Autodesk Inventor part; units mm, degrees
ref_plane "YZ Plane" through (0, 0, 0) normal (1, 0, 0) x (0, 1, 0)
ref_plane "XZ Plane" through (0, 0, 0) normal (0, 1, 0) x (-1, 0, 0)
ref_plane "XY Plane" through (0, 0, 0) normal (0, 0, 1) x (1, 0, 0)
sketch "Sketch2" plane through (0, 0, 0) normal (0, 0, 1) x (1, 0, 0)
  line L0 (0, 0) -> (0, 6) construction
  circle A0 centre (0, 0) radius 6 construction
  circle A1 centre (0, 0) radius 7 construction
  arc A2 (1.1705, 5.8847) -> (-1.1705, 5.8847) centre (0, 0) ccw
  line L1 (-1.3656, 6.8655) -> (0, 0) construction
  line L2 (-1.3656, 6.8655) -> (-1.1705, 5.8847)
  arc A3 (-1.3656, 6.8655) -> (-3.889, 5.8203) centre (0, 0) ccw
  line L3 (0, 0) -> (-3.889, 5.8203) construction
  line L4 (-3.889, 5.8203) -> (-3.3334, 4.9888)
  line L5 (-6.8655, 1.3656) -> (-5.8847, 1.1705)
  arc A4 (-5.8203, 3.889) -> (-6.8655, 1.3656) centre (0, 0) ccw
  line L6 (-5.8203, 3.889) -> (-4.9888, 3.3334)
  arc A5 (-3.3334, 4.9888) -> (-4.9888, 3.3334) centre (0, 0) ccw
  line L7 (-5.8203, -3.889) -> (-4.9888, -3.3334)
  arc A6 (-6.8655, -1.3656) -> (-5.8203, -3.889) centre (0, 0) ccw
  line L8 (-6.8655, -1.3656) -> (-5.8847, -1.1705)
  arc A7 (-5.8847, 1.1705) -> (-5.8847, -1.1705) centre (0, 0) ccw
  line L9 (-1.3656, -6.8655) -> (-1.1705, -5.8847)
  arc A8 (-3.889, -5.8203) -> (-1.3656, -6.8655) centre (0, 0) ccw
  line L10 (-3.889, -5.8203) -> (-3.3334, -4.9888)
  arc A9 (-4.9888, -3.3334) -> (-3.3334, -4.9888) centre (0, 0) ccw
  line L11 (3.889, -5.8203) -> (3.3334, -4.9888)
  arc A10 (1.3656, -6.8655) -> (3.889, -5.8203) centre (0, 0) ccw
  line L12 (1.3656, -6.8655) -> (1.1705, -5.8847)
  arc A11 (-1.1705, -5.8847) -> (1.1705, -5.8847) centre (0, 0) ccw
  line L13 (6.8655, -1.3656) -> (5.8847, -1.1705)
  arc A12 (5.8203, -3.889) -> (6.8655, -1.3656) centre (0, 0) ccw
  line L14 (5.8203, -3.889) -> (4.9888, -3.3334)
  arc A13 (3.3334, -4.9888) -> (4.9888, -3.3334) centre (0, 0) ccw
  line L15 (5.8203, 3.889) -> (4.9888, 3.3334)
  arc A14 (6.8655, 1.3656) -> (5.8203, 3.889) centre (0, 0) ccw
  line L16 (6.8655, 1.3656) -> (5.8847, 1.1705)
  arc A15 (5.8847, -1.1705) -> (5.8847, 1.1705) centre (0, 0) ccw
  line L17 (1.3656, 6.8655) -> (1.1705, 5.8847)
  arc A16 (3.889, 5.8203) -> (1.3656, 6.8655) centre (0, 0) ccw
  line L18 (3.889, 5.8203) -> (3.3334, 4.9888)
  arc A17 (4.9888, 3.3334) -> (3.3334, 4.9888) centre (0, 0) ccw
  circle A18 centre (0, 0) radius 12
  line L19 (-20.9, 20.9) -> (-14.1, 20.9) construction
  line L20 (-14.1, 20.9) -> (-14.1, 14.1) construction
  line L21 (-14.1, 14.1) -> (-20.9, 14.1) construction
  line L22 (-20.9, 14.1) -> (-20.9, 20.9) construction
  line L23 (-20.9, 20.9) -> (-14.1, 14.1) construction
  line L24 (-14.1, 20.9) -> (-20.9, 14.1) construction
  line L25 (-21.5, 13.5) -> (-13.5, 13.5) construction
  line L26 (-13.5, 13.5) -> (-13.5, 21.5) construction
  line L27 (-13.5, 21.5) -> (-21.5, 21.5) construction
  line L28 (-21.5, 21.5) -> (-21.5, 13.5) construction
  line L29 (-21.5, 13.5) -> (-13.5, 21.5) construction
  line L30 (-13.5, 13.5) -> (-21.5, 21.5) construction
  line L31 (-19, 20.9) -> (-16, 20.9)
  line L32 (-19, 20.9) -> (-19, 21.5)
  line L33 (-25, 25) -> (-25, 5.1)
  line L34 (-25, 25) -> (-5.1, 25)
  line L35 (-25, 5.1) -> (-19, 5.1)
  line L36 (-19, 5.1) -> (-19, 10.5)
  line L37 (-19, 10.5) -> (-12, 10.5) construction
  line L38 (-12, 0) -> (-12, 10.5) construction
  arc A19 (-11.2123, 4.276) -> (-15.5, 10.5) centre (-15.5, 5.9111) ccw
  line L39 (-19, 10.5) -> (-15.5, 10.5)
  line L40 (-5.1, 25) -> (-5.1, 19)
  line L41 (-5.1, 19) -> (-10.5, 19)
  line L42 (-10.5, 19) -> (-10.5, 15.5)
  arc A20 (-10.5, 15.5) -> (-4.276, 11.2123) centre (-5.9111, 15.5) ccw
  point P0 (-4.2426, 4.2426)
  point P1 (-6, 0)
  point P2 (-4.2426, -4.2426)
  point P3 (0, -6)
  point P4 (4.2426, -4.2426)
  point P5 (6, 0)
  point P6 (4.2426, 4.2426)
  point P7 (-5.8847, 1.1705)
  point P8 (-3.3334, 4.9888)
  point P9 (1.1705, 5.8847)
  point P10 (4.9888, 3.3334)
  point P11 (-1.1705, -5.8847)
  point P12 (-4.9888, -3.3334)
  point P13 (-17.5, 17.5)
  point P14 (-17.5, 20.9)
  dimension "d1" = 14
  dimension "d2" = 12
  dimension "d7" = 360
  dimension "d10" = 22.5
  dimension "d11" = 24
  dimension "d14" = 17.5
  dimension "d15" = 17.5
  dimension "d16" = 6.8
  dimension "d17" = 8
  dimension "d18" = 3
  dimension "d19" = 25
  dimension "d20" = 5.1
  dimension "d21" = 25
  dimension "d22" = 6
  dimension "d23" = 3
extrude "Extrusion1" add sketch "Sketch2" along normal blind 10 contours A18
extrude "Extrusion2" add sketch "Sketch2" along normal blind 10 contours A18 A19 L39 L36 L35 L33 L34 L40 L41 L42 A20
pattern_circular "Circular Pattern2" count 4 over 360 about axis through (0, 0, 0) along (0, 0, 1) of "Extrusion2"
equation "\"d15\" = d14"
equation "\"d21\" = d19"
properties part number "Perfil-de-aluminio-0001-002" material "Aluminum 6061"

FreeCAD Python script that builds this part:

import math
import FreeCAD as App
import Part
import Sketcher
from FreeCAD import Vector
Q = App.Units.Quantity

doc = App.newDocument("Part")
body = doc.addObject("PartDesign::Body", "Body")

# Sketch on XY plane
sketch1 = body.newObject("Sketcher::SketchObject", "Sketch")
sketch1.AttachmentSupport = (doc.getObject("XY_Plane"), [""])
sketch1.MapMode = "FlatFace"
sketch1.addGeometry(Part.Circle(Vector(0, 0, 0), Vector(0, 0, 1), 12), False)
sketch1.addGeometry(Part.ArcOfCircle(Part.Circle(Vector(0, 0, 0), Vector(0, 0, 1), 5.99998), math.radians(78.750371), math.radians(101.249629)), False)
sketch1.addGeometry(Part.LineSegment(Vector(1.1705, 5.8847, 0), Vector(1.3656, 6.8655, 0)), False)
sketch1.addGeometry(Part.ArcOfCircle(Part.Circle(Vector(0, 0, 0), Vector(0, 0, 1), 6.999997), math.radians(56.250001), math.radians(78.750264)), False)
sketch1.addGeometry(Part.LineSegment(Vector(3.889, 5.8203, 0), Vector(3.3334, 4.9888, 0)), False)
sketch1.addGeometry(Part.ArcOfCircle(Part.Circle(Vector(0, 0, 0), Vector(0, 0, 1), 5.999973), math.radians(33.749924), math.radians(56.250076)), False)
sketch1.addGeometry(Part.LineSegment(Vector(4.9888, 3.3334, 0), Vector(5.8203, 3.889, 0)), False)
sketch1.addGeometry(Part.ArcOfCircle(Part.Circle(Vector(0, 0, 0), Vector(0, 0, 1), 7.000015), math.radians(11.249736), math.radians(33.749999)), False)
sketch1.addGeometry(Part.LineSegment(Vector(6.8655, 1.3656, 0), Vector(5.8847, 1.1705, 0)), False)
sketch1.addGeometry(Part.ArcOfCircle(Part.Circle(Vector(0, 0, 0), Vector(0, 0, 1), 5.99998), math.radians(-11.249629), math.radians(11.249629)), False)
sketch1.addGeometry(Part.LineSegment(Vector(5.8847, -1.1705, 0), Vector(6.8655, -1.3656, 0)), False)
sketch1.addGeometry(Part.ArcOfCircle(Part.Circle(Vector(0, 0, 0), Vector(0, 0, 1), 6.999997), math.radians(-33.749999), math.radians(-11.249736)), False)
sketch1.addGeometry(Part.LineSegment(Vector(5.8203, -3.889, 0), Vector(4.9888, -3.3334, 0)), False)
sketch1.addGeometry(Part.ArcOfCircle(Part.Circle(Vector(0, 0, 0), Vector(0, 0, 1), 5.999973), math.radians(-56.250076), math.radians(-33.749924)), False)
sketch1.addGeometry(Part.LineSegment(Vector(3.3334, -4.9888, 0), Vector(3.889, -5.8203, 0)), False)
sketch1.addGeometry(Part.ArcOfCircle(Part.Circle(Vector(0, 0, 0), Vector(0, 0, 1), 7.000015), math.radians(-78.750264), math.radians(-56.250001)), False)
sketch1.addGeometry(Part.LineSegment(Vector(1.3656, -6.8655, 0), Vector(1.1705, -5.8847, 0)), False)
sketch1.addGeometry(Part.ArcOfCircle(Part.Circle(Vector(0, 0, 0), Vector(0, 0, 1), 5.99998), math.radians(-101.249629), math.radians(-78.750371)), False)
sketch1.addGeometry(Part.LineSegment(Vector(-1.1705, -5.8847, 0), Vector(-1.3656, -6.8655, 0)), False)
sketch1.addGeometry(Part.ArcOfCircle(Part.Circle(Vector(0, 0, 0), Vector(0, 0, 1), 6.999997), math.radians(-123.749999), math.radians(-101.249736)), False)
sketch1.addGeometry(Part.LineSegment(Vector(-3.889, -5.8203, 0), Vector(-3.3334, -4.9888, 0)), False)
sketch1.addGeometry(Part.ArcOfCircle(Part.Circle(Vector(0, 0, 0), Vector(0, 0, 1), 5.999973), math.radians(-146.250076), math.radians(-123.749924)), False)
sketch1.addGeometry(Part.LineSegment(Vector(-4.9888, -3.3334, 0), Vector(-5.8203, -3.889, 0)), False)
sketch1.addGeometry(Part.ArcOfCircle(Part.Circle(Vector(0, 0, 0), Vector(0, 0, 1), 7.000015), math.radians(-168.750264), math.radians(-146.250001)), False)
sketch1.addGeometry(Part.LineSegment(Vector(-6.8655, -1.3656, 0), Vector(-5.8847, -1.1705, 0)), False)
sketch1.addGeometry(Part.ArcOfCircle(Part.Circle(Vector(0, 0, 0), Vector(0, 0, 1), 5.99998), math.radians(168.750371), math.radians(191.249629)), False)
sketch1.addGeometry(Part.LineSegment(Vector(-5.8847, 1.1705, 0), Vector(-6.8655, 1.3656, 0)), False)
sketch1.addGeometry(Part.ArcOfCircle(Part.Circle(Vector(0, 0, 0), Vector(0, 0, 1), 6.999997), math.radians(146.250001), math.radians(168.750264)), False)
sketch1.addGeometry(Part.LineSegment(Vector(-5.8203, 3.889, 0), Vector(-4.9888, 3.3334, 0)), False)
sketch1.addGeometry(Part.ArcOfCircle(Part.Circle(Vector(0, 0, 0), Vector(0, 0, 1), 5.999973), math.radians(123.749924), math.radians(146.250076)), False)
sketch1.addGeometry(Part.LineSegment(Vector(-3.3334, 4.9888, 0), Vector(-3.889, 5.8203, 0)), False)
sketch1.addGeometry(Part.ArcOfCircle(Part.Circle(Vector(0, 0, 0), Vector(0, 0, 1), 7.000015), math.radians(101.249736), math.radians(123.749999)), False)
sketch1.addGeometry(Part.LineSegment(Vector(-1.3656, 6.8655, 0), Vector(-1.1705, 5.8847, 0)), False)
sketch1.addConstraint(Sketcher.Constraint("Coincident", 1, 1, 2, 1))
sketch1.addConstraint(Sketcher.Constraint("Coincident", 2, 2, 3, 2))
sketch1.addConstraint(Sketcher.Constraint("Coincident", 3, 1, 4, 1))
sketch1.addConstraint(Sketcher.Constraint("Coincident", 4, 2, 5, 2))
sketch1.addConstraint(Sketcher.Constraint("Coincident", 5, 1, 6, 1))
sketch1.addConstraint(Sketcher.Constraint("Coincident", 6, 2, 7, 2))
sketch1.addConstraint(Sketcher.Constraint("Coincident", 7, 1, 8, 1))
sketch1.addConstraint(Sketcher.Constraint("Coincident", 8, 2, 9, 2))
sketch1.addConstraint(Sketcher.Constraint("Coincident", 9, 1, 10, 1))
sketch1.addConstraint(Sketcher.Constraint("Coincident", 10, 2, 11, 2))
sketch1.addConstraint(Sketcher.Constraint("Coincident", 11, 1, 12, 1))
sketch1.addConstraint(Sketcher.Constraint("Coincident", 12, 2, 13, 2))
sketch1.addConstraint(Sketcher.Constraint("Coincident", 13, 1, 14, 1))
sketch1.addConstraint(Sketcher.Constraint("Coincident", 14, 2, 15, 2))
sketch1.addConstraint(Sketcher.Constraint("Coincident", 15, 1, 16, 1))
sketch1.addConstraint(Sketcher.Constraint("Coincident", 16, 2, 17, 2))
sketch1.addConstraint(Sketcher.Constraint("Coincident", 17, 1, 18, 1))
sketch1.addConstraint(Sketcher.Constraint("Coincident", 18, 2, 19, 2))
sketch1.addConstraint(Sketcher.Constraint("Coincident", 19, 1, 20, 1))
sketch1.addConstraint(Sketcher.Constraint("Coincident", 20, 2, 21, 2))
sketch1.addConstraint(Sketcher.Constraint("Coincident", 21, 1, 22, 1))
sketch1.addConstraint(Sketcher.Constraint("Coincident", 22, 2, 23, 2))
sketch1.addConstraint(Sketcher.Constraint("Coincident", 23, 1, 24, 1))
sketch1.addConstraint(Sketcher.Constraint("Coincident", 24, 2, 25, 2))
sketch1.addConstraint(Sketcher.Constraint("Coincident", 25, 1, 26, 1))
sketch1.addConstraint(Sketcher.Constraint("Coincident", 26, 2, 27, 2))
sketch1.addConstraint(Sketcher.Constraint("Coincident", 27, 1, 28, 1))
sketch1.addConstraint(Sketcher.Constraint("Coincident", 28, 2, 29, 2))
sketch1.addConstraint(Sketcher.Constraint("Coincident", 29, 1, 30, 1))
sketch1.addConstraint(Sketcher.Constraint("Coincident", 30, 2, 31, 2))
sketch1.addConstraint(Sketcher.Constraint("Coincident", 31, 1, 32, 1))
sketch1.addConstraint(Sketcher.Constraint("Coincident", 32, 2, 1, 2))
sketch1.addConstraint(Sketcher.Constraint("Coincident", 0, 3, -1, 1))
sketch1.addConstraint(Sketcher.Constraint("Coincident", 1, 3, -1, 1))
sketch1.addConstraint(Sketcher.Constraint("Coincident", 3, 3, -1, 1))
sketch1.addConstraint(Sketcher.Constraint("Coincident", 5, 3, -1, 1))
sketch1.addConstraint(Sketcher.Constraint("Coincident", 7, 3, -1, 1))
sketch1.addConstraint(Sketcher.Constraint("Coincident", 9, 3, -1, 1))
sketch1.addConstraint(Sketcher.Constraint("Coincident", 11, 3, -1, 1))
sketch1.addConstraint(Sketcher.Constraint("Coincident", 13, 3, -1, 1))
sketch1.addConstraint(Sketcher.Constraint("Coincident", 15, 3, -1, 1))
sketch1.addConstraint(Sketcher.Constraint("Coincident", 17, 3, -1, 1))
sketch1.addConstraint(Sketcher.Constraint("Coincident", 19, 3, -1, 1))
sketch1.addConstraint(Sketcher.Constraint("Coincident", 21, 3, -1, 1))
sketch1.addConstraint(Sketcher.Constraint("Coincident", 23, 3, -1, 1))
sketch1.addConstraint(Sketcher.Constraint("Coincident", 25, 3, -1, 1))
sketch1.addConstraint(Sketcher.Constraint("Coincident", 27, 3, -1, 1))
sketch1.addConstraint(Sketcher.Constraint("Coincident", 29, 3, -1, 1))
sketch1.addConstraint(Sketcher.Constraint("Coincident", 31, 3, -1, 1))
sketch1.addConstraint(Sketcher.Constraint("Equal", 1, 5))
sketch1.addConstraint(Sketcher.Constraint("Equal", 3, 7))
sketch1.addConstraint(Sketcher.Constraint("Equal", 5, 9))
sketch1.addConstraint(Sketcher.Constraint("Equal", 7, 11))
sketch1.addConstraint(Sketcher.Constraint("Equal", 9, 13))
sketch1.addConstraint(Sketcher.Constraint("Equal", 11, 15))
sketch1.addConstraint(Sketcher.Constraint("Equal", 13, 17))
sketch1.addConstraint(Sketcher.Constraint("Equal", 15, 19))
sketch1.addConstraint(Sketcher.Constraint("Equal", 17, 21))
sketch1.addConstraint(Sketcher.Constraint("Equal", 19, 23))
sketch1.addConstraint(Sketcher.Constraint("Equal", 21, 25))
sketch1.addConstraint(Sketcher.Constraint("Equal", 23, 27))
sketch1.addConstraint(Sketcher.Constraint("Equal", 25, 29))
sketch1.addConstraint(Sketcher.Constraint("Equal", 27, 31))
sketch1.addConstraint(Sketcher.Constraint("Perpendicular", 2, 10))
sketch1.addConstraint(Sketcher.Constraint("Perpendicular", 4, 12))
sketch1.addConstraint(Sketcher.Constraint("Perpendicular", 6, 14))
sketch1.addConstraint(Sketcher.Constraint("Perpendicular", 8, 16))
sketch1.addConstraint(Sketcher.Constraint("Perpendicular", 10, 18))
sketch1.addConstraint(Sketcher.Constraint("Perpendicular", 12, 20))
sketch1.addConstraint(Sketcher.Constraint("Perpendicular", 14, 22))
sketch1.addConstraint(Sketcher.Constraint("Perpendicular", 16, 24))
sketch1.addConstraint(Sketcher.Constraint("Perpendicular", 18, 26))
sketch1.addConstraint(Sketcher.Constraint("Perpendicular", 20, 28))
sketch1.addConstraint(Sketcher.Constraint("Perpendicular", 22, 30))
sketch1.addConstraint(Sketcher.Constraint("Perpendicular", 24, 32))
sketch1.addConstraint(Sketcher.Constraint("Horizontal", 16, 2, 17, 1))
sketch1.addConstraint(Sketcher.Constraint("Horizontal", 15, 1, 18, 2))
sketch1.addConstraint(Sketcher.Constraint("Horizontal", 14, 2, 19, 1))
sketch1.addConstraint(Sketcher.Constraint("Horizontal", 13, 1, 20, 2))
sketch1.addConstraint(Sketcher.Constraint("Horizontal", 12, 2, 21, 1))
sketch1.addConstraint(Sketcher.Constraint("Horizontal", 10, 2, 23, 1))
sketch1.addConstraint(Sketcher.Constraint("Horizontal", 8, 2, 25, 1))
sketch1.addConstraint(Sketcher.Constraint("Horizontal", 6, 2, 27, 1))
sketch1.addConstraint(Sketcher.Constraint("Horizontal", 4, 2, 29, 1))
sketch1.addConstraint(Sketcher.Constraint("Horizontal", 2, 2, 31, 1))
sketch1.addConstraint(Sketcher.Constraint("Vertical", 8, 2, 9, 1))
sketch1.addConstraint(Sketcher.Constraint("Vertical", 6, 2, 11, 1))
sketch1.addConstraint(Sketcher.Constraint("Vertical", 4, 2, 13, 1))
sketch1.addConstraint(Sketcher.Constraint("Vertical", 2, 2, 15, 1))
sketch1.addConstraint(Sketcher.Constraint("Diameter", 0, Q("24 mm")))
sketch1.addConstraint(Sketcher.Constraint("Radius", 1, Q("6 mm")))
sketch1.addConstraint(Sketcher.Constraint("Radius", 3, Q("7 mm")))
sketch1.addConstraint(Sketcher.Constraint("Angle", 2, Q("78.7496 deg")))
sketch1.addConstraint(Sketcher.Constraint("Angle", 4, Q("-123.7505 deg")))
sketch1.addConstraint(Sketcher.Constraint("DistanceX", -1, 1, 3, 1, Q("3.889 mm")))
sketch1.addConstraint(Sketcher.Constraint("DistanceY", -1, 1, 6, 2, Q("3.889 mm")))
sketch1.addConstraint(Sketcher.Constraint("DistanceX", 1, 1, 4, 2, Q("2.163 mm")))
sketch1.addConstraint(Sketcher.Constraint("DistanceX", 4, 2, 7, 1, Q("3.532 mm")))
pad1 = body.newObject("PartDesign::Pad", "Pad")
pad1.Profile = sketch1
pad1.Length = 10

# Sketch on XY plane
sketch2 = body.newObject("Sketcher::SketchObject", "Sketch001")
sketch2.AttachmentSupport = (doc.getObject("XY_Plane"), [""])
sketch2.MapMode = "FlatFace"
sketch2.addGeometry(Part.ArcOfCircle(Part.Circle(Vector(0, 0, 0), Vector(0, 0, 1), 12), math.radians(110.875195), math.radians(159.124805)), False)
sketch2.addGeometry(Part.ArcOfCircle(Part.Circle(Vector(-5.9111, 15.5, 0), Vector(0, 0, 1), 4.5889), math.radians(180), math.radians(290.874182)), False)
sketch2.addGeometry(Part.LineSegment(Vector(-10.5, 15.5, 0), Vector(-10.5, 19, 0)), False)
sketch2.addGeometry(Part.LineSegment(Vector(-10.5, 19, 0), Vector(-5.1, 19, 0)), False)
sketch2.addGeometry(Part.LineSegment(Vector(-5.1, 19, 0), Vector(-5.1, 25, 0)), False)
sketch2.addGeometry(Part.LineSegment(Vector(-5.1, 25, 0), Vector(-25, 25, 0)), False)
sketch2.addGeometry(Part.LineSegment(Vector(-25, 25, 0), Vector(-25, 5.1, 0)), False)
sketch2.addGeometry(Part.LineSegment(Vector(-25, 5.1, 0), Vector(-19, 5.1, 0)), False)
sketch2.addGeometry(Part.LineSegment(Vector(-19, 5.1, 0), Vector(-19, 10.5, 0)), False)
sketch2.addGeometry(Part.LineSegment(Vector(-19, 10.5, 0), Vector(-15.5, 10.5, 0)), False)
sketch2.addGeometry(Part.ArcOfCircle(Part.Circle(Vector(-15.5, 5.9111, 0), Vector(0, 0, 1), 4.588891), math.radians(-20.874182), math.radians(90)), False)
sketch2.addConstraint(Sketcher.Constraint("Tangent", 0, 1, 1, 2))
sketch2.addConstraint(Sketcher.Constraint("Tangent", 1, 1, 2, 1))
sketch2.addConstraint(Sketcher.Constraint("Coincident", 2, 2, 3, 1))
sketch2.addConstraint(Sketcher.Constraint("Coincident", 3, 2, 4, 1))
sketch2.addConstraint(Sketcher.Constraint("Coincident", 4, 2, 5, 1))
sketch2.addConstraint(Sketcher.Constraint("Coincident", 5, 2, 6, 1))
sketch2.addConstraint(Sketcher.Constraint("Coincident", 6, 2, 7, 1))
sketch2.addConstraint(Sketcher.Constraint("Coincident", 7, 2, 8, 1))
sketch2.addConstraint(Sketcher.Constraint("Coincident", 8, 2, 9, 1))
sketch2.addConstraint(Sketcher.Constraint("Tangent", 9, 2, 10, 2))
sketch2.addConstraint(Sketcher.Constraint("Tangent", 10, 1, 0, 2))
sketch2.addConstraint(Sketcher.Constraint("Vertical", 2))
sketch2.addConstraint(Sketcher.Constraint("Horizontal", 3))
sketch2.addConstraint(Sketcher.Constraint("Vertical", 4))
sketch2.addConstraint(Sketcher.Constraint("Horizontal", 5))
sketch2.addConstraint(Sketcher.Constraint("Vertical", 6))
sketch2.addConstraint(Sketcher.Constraint("Horizontal", 7))
sketch2.addConstraint(Sketcher.Constraint("Vertical", 8))
sketch2.addConstraint(Sketcher.Constraint("Horizontal", 9))
sketch2.addConstraint(Sketcher.Constraint("Coincident", 0, 3, -1, 1))
sketch2.addConstraint(Sketcher.Constraint("Equal", 1, 10))
sketch2.addConstraint(Sketcher.Constraint("Equal", 9, 2))
sketch2.addConstraint(Sketcher.Constraint("Equal", 7, 4))
sketch2.addConstraint(Sketcher.Constraint("Equal", 5, 6))
sketch2.addConstraint(Sketcher.Constraint("Equal", 3, 8))
sketch2.addConstraint(Sketcher.Constraint("Radius", 0, Q("12 mm")))
sketch2.addConstraint(Sketcher.Constraint("DistanceX", 7, 1, 7, 2, Q("6 mm")))
sketch2.addConstraint(Sketcher.Constraint("DistanceY", -1, 1, 4, 2, Q("25 mm")))
sketch2.addConstraint(Sketcher.Constraint("DistanceX", 3, 2, -1, 1, Q("5.1 mm")))
sketch2.addConstraint(Sketcher.Constraint("DistanceX", 3, 1, 3, 2, Q("5.4 mm")))
sketch2.addConstraint(Sketcher.Constraint("DistanceX", 9, 1, 9, 2, Q("3.5 mm")))
pad2 = body.newObject("PartDesign::Pad", "Pad001")
pad2.Profile = sketch2
pad2.Length = 10
doc.recompute()

polarpattern = body.newObject("PartDesign::PolarPattern", "PolarPattern")
polarpattern.Originals = [pad2]
polarpattern.Axis = (doc.getObject("Z_Axis"), [""])
polarpattern.Angle = 360
polarpattern.Occurrences = 4
body.Tip = polarpattern

doc.recompute()
